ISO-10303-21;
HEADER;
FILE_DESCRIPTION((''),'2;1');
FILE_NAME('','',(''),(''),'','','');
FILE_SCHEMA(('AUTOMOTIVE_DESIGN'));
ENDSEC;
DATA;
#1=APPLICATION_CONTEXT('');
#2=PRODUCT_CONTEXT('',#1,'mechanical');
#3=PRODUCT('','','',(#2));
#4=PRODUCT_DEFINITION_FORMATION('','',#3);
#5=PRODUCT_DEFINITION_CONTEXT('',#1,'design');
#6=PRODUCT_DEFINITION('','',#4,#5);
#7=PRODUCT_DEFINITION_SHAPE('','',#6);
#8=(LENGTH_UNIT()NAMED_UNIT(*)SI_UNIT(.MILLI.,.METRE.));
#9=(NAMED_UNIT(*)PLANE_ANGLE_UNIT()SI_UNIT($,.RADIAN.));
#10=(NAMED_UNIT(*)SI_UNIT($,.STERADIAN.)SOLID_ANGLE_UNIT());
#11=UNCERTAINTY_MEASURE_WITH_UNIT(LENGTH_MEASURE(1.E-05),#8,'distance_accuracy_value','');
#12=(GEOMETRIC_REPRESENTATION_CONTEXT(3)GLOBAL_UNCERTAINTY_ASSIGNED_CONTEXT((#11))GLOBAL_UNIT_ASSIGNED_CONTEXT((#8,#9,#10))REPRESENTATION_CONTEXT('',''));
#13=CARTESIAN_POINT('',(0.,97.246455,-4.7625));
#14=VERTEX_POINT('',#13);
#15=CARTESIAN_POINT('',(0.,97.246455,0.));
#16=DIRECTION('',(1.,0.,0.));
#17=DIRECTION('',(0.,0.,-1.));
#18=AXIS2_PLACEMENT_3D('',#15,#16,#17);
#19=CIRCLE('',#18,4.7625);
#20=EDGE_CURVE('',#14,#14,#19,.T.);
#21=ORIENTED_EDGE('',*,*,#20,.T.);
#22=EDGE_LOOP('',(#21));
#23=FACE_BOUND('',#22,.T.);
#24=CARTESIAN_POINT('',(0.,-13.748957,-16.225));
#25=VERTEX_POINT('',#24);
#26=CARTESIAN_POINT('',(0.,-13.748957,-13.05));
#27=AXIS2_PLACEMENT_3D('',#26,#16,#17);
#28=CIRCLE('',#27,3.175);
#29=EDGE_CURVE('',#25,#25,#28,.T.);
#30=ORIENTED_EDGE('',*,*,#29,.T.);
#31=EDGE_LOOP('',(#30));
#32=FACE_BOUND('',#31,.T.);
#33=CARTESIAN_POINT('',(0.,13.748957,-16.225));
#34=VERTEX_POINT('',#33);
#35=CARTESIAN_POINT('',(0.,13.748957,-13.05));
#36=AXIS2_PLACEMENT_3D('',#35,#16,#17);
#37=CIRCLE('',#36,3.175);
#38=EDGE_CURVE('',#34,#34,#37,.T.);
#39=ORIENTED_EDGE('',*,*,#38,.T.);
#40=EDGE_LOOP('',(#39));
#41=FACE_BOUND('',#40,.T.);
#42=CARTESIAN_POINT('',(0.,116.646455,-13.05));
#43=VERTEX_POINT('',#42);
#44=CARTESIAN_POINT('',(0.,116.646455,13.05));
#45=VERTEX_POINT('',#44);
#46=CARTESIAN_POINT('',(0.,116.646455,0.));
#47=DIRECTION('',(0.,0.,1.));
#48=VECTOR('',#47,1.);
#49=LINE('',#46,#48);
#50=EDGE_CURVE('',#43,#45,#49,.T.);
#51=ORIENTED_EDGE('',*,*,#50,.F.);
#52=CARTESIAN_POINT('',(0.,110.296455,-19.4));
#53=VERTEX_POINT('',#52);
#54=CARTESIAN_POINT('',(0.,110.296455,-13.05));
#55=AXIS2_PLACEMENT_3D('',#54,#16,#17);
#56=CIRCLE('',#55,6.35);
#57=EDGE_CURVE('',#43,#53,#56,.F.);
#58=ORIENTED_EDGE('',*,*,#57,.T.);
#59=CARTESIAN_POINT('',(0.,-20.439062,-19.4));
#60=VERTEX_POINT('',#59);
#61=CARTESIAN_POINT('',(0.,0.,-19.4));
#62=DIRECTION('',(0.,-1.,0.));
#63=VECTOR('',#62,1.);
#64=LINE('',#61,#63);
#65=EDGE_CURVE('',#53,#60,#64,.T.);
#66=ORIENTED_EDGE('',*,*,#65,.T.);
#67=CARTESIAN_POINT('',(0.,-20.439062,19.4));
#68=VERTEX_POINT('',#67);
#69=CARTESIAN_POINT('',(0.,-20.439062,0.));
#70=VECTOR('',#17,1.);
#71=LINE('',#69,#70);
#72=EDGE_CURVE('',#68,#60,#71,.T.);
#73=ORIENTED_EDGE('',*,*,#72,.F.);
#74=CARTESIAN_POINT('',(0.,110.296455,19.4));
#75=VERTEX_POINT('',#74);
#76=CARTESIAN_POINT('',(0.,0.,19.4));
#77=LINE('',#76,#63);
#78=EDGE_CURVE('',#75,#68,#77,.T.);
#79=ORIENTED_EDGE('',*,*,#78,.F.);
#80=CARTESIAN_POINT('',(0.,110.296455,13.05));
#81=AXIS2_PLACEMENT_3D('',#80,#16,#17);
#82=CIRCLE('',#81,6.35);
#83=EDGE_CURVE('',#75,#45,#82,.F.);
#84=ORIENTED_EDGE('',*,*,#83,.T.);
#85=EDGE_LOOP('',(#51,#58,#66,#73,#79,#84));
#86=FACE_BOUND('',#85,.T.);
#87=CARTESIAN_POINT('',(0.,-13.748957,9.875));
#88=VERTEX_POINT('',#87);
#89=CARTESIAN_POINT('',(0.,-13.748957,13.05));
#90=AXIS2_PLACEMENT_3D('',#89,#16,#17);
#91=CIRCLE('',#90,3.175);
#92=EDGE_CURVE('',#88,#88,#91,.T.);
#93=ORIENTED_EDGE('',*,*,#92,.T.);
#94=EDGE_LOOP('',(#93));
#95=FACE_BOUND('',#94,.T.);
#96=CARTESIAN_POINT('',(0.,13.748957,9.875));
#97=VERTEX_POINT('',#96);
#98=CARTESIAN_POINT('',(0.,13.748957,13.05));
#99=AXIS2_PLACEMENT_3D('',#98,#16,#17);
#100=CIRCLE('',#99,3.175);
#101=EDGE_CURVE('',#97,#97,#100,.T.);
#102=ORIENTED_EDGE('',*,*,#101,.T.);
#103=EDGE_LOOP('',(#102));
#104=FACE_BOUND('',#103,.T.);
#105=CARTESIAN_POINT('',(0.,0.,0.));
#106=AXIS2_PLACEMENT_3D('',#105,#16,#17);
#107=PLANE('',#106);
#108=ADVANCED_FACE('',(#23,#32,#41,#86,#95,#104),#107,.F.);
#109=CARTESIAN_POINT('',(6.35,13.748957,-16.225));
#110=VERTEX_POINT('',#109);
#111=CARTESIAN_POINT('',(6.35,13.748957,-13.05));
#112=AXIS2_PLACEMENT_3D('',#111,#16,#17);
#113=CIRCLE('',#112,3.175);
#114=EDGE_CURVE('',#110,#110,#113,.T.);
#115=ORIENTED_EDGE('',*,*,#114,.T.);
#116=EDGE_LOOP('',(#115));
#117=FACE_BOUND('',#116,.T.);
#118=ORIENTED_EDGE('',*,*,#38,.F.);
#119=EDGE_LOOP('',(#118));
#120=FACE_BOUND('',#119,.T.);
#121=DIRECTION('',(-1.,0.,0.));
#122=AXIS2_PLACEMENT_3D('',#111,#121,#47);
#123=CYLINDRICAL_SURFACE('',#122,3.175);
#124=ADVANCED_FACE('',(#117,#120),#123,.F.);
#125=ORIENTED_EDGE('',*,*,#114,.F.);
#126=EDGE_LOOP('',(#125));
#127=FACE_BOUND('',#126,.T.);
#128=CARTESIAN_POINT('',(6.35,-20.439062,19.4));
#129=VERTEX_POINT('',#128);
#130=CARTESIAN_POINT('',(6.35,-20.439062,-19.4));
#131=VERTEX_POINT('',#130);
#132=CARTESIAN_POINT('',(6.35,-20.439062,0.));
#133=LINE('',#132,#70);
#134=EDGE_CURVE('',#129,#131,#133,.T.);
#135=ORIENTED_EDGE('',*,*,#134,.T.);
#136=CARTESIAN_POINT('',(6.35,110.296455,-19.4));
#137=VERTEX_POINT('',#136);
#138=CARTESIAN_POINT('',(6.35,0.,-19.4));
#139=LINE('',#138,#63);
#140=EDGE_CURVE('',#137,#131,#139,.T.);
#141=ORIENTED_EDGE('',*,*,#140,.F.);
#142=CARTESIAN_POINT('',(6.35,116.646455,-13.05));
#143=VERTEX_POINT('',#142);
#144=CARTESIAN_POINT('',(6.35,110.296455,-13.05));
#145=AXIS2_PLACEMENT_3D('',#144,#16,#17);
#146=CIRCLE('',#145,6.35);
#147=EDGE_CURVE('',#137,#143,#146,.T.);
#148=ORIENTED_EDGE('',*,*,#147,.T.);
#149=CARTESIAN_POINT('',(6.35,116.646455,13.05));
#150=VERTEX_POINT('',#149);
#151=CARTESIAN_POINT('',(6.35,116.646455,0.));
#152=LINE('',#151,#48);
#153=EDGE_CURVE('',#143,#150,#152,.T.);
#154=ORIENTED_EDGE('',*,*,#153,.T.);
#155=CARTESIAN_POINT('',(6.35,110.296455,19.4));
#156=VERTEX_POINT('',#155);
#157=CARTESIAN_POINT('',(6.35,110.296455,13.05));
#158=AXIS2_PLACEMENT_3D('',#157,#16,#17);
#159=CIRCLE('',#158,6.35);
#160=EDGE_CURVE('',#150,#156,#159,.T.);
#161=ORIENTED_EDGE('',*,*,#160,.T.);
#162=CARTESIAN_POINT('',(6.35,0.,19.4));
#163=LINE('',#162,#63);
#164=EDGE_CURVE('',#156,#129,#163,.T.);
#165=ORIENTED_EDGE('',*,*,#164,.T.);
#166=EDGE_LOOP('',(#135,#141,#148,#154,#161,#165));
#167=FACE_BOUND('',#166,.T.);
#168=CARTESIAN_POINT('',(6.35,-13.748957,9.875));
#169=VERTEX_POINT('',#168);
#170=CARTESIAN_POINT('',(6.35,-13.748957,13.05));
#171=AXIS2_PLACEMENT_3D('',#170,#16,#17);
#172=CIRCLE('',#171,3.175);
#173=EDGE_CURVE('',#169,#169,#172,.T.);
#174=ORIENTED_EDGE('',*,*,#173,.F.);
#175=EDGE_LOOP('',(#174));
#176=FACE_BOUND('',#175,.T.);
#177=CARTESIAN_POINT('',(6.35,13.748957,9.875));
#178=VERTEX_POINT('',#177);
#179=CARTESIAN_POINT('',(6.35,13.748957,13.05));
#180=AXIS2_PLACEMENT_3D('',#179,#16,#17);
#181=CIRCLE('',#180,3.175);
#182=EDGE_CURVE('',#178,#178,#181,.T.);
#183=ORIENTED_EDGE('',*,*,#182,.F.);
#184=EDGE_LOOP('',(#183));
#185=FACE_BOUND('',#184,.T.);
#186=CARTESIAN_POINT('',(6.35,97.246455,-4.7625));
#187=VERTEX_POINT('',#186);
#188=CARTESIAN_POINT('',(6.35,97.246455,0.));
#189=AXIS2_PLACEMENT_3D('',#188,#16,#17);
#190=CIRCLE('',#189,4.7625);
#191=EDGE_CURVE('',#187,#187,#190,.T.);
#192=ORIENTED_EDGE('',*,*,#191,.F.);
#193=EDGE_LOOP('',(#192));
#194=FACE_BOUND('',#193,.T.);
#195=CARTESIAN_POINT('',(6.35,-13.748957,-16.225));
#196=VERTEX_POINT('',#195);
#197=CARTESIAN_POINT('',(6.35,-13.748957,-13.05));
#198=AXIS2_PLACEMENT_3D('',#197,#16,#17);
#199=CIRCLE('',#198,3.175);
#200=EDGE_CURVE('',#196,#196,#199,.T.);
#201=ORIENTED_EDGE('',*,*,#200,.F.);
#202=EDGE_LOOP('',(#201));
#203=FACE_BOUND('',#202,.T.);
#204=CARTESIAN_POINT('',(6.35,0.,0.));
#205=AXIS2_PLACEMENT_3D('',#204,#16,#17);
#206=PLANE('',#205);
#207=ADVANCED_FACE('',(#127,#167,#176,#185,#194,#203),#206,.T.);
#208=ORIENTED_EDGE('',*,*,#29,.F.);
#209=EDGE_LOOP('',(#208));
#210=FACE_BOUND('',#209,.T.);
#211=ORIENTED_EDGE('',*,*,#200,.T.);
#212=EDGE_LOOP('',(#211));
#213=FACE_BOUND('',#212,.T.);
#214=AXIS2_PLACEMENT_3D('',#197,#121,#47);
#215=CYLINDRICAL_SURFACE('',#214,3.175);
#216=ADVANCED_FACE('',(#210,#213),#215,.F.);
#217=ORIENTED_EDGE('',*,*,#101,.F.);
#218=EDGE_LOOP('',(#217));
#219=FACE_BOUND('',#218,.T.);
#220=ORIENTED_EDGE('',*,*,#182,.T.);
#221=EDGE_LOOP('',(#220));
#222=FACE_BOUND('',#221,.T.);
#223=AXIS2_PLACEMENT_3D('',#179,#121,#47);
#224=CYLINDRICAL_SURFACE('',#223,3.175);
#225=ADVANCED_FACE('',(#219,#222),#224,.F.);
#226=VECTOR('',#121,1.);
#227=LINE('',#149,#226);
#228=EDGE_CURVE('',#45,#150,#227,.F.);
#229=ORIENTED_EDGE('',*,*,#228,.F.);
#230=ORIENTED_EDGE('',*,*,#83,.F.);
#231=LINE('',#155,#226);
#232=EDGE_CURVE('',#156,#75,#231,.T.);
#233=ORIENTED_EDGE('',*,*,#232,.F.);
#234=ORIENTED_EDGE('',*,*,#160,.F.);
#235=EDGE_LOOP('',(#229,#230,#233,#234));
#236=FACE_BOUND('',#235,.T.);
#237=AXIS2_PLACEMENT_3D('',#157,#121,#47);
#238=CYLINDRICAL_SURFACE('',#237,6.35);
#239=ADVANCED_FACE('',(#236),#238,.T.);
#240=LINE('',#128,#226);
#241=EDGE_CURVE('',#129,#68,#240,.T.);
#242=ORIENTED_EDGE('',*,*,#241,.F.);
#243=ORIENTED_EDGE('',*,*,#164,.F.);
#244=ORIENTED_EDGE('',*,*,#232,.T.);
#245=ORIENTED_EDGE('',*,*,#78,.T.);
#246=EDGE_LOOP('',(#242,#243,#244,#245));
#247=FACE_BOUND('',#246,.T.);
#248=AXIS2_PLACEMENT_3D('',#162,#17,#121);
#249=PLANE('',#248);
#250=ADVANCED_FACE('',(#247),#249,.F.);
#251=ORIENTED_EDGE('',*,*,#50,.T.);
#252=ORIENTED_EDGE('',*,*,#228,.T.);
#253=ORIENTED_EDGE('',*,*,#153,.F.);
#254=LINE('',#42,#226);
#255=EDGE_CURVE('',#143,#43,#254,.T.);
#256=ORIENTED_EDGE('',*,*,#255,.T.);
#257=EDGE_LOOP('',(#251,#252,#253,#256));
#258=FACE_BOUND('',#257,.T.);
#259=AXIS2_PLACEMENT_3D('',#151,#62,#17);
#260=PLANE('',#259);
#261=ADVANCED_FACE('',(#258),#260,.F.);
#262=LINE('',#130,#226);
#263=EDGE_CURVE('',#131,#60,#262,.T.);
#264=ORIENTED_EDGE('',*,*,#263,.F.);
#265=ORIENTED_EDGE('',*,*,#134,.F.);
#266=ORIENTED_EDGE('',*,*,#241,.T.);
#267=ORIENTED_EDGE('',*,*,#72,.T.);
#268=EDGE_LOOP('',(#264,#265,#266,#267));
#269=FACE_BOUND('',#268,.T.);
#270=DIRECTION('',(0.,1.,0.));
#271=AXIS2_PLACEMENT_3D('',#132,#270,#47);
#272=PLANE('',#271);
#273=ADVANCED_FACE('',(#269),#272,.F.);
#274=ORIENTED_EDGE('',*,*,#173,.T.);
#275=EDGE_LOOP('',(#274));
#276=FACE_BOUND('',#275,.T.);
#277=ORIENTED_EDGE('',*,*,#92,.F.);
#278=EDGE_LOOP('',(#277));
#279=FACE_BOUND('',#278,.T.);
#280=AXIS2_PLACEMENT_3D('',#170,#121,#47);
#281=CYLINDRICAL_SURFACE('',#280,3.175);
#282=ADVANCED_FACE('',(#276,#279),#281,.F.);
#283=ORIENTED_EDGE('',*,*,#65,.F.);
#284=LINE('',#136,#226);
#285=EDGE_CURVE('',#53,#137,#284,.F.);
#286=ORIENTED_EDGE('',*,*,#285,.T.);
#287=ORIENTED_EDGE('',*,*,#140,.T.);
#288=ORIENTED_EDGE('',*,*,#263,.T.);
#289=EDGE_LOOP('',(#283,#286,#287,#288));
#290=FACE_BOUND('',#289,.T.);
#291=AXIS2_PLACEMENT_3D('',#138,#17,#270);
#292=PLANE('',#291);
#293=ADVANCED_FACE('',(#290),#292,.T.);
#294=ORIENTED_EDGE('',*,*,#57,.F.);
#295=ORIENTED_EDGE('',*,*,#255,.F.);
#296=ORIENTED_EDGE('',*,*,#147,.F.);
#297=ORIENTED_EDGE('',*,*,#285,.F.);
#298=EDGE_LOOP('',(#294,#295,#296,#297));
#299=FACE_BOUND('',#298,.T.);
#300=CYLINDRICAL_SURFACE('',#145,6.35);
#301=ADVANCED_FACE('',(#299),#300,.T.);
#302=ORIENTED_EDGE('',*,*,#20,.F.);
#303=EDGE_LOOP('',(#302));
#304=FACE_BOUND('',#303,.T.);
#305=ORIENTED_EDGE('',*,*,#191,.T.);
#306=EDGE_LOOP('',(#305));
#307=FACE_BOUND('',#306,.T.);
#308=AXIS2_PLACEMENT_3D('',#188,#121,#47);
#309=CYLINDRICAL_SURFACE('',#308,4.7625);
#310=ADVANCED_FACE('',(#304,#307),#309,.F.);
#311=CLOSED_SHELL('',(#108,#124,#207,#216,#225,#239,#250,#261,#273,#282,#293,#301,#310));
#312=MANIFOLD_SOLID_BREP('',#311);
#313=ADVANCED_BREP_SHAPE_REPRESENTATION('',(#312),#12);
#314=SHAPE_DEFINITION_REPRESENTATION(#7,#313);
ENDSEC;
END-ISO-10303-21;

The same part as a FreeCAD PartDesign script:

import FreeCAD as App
import Part
import Sketcher

V = App.Vector
Q = App.Units.Quantity


def edges_at(feature, points):
    """Names of the edges that pass closest to the given points."""
    edges = feature.Shape.Edges
    near = lambda p: min(range(len(edges)), key=lambda i: edges[i].distToShape(Part.Vertex(*p))[0])
    return sorted({f"Edge{near(p) + 1}" for p in points})

doc = App.newDocument("Part")
params = doc.addObject("Spreadsheet::Sheet", "Params")
for row, (alias, value) in enumerate([
    ("sketch1_diameter", "0.25 in"),
    ("sketch1_diameter2", "0.375 in"),
    ("pad1_length", "0.25 in"),
    ("fillet_radius", "0.25 in"),
], start=1):
    params.set(f"A{row}", alias)
    params.set(f"B{row}", "=" + value)
    params.setAlias(f"B{row}", alias)

body = doc.addObject("PartDesign::Body", "Body")

# Sketch on YZ plane
sketch1 = doc.addObject("Sketcher::SketchObject", "Sketch")
body.addObject(sketch1)
sketch1.AttachmentSupport = (doc.YZ_Plane, [""])
sketch1.MapMode = "FlatFace"
sketch1.addGeometry([
    Part.LineSegment(V(-20.4, -19.4, 0), V(116.6, -19.4, 0)),  # 0
    Part.LineSegment(V(116.6, -19.4, 0), V(116.6, 19.4, 0)),  # 1
    Part.LineSegment(V(116.6, 19.4, 0), V(-20.4, 19.4, 0)),  # 2
    Part.LineSegment(V(-20.4, 19.4, 0), V(-20.4, -19.4, 0)),  # 3
    Part.Circle(V(-13.7, -13.1, 0), V(0, 0, 1), 3.2),  # 4
    Part.Circle(V(13.7, -13.1, 0), V(0, 0, 1), 3.2),  # 5
    Part.Circle(V(-13.7, 13.1, 0), V(0, 0, 1), 3.2),  # 6
    Part.Circle(V(13.7, 13.1, 0), V(0, 0, 1), 3.2),  # 7
    Part.Circle(V(97.2, 0, 0), V(0, 0, 1), 4.8),  # 8
], False)
sketch1.addConstraint([
    Sketcher.Constraint("Coincident", 0, 2, 1, 1),
    Sketcher.Constraint("Coincident", 1, 2, 2, 1),
    Sketcher.Constraint("Coincident", 2, 2, 3, 1),
    Sketcher.Constraint("Coincident", 3, 2, 0, 1),
    Sketcher.Constraint("Horizontal", 0),
    Sketcher.Constraint("Vertical", 1),
    Sketcher.Constraint("Horizontal", 2),
    Sketcher.Constraint("Vertical", 3),
    Sketcher.Constraint("Equal", 4, 5),
    Sketcher.Constraint("Equal", 5, 6),
    Sketcher.Constraint("Equal", 6, 7),
    Sketcher.Constraint("Symmetric", 5, 3, 6, 3, -1, 1),
    Sketcher.Constraint("Symmetric", 4, 3, 7, 3, -1, 1),
    Sketcher.Constraint("Symmetric", 4, 3, 5, 3, -2),
    Sketcher.Constraint("PointOnObject", 8, 3, -1),
    Sketcher.Constraint("Diameter", 4, Q("0.25 in")),
    Sketcher.Constraint("Diameter", 8, Q("0.375 in")),
    Sketcher.Constraint("DistanceY", 0, 2, 5, 3, Q("0.25 in")),
    Sketcher.Constraint("DistanceY", 7, 3, 1, 2, Q("0.25 in")),
    Sketcher.Constraint("DistanceY", 1, 1, 1, 2, Q("38.8 mm")),
    Sketcher.Constraint("DistanceX", 5, 3, 8, 3, Q("83.497498 mm")),
    Sketcher.Constraint("DistanceX", 8, 3, 0, 2, Q("19.4 mm")),
    Sketcher.Constraint("DistanceX", 0, 1, 0, 2, Q("137.085518 mm")),
    Sketcher.Constraint("DistanceX", 4, 3, -1, 1, Q("13.748957 mm")),
])
sketch1.setExpression("Constraints[15]", "Params.sketch1_diameter")
sketch1.setExpression("Constraints[16]", "Params.sketch1_diameter2")
pad1 = doc.addObject("PartDesign::Pad", "Pad")
body.addObject(pad1)
pad1.Profile = sketch1
pad1.setExpression("Length", "Params.pad1_length")
doc.recompute()

fillet = doc.addObject("PartDesign::Fillet", "Fillet")
body.addObject(fillet)
fillet.Base = (pad1, edges_at(pad1, [(3.175, 116.646, 19.4), (3.175, 116.646, -19.4)]))
fillet.setExpression("Radius", "Params.fillet_radius")

doc.recompute()
